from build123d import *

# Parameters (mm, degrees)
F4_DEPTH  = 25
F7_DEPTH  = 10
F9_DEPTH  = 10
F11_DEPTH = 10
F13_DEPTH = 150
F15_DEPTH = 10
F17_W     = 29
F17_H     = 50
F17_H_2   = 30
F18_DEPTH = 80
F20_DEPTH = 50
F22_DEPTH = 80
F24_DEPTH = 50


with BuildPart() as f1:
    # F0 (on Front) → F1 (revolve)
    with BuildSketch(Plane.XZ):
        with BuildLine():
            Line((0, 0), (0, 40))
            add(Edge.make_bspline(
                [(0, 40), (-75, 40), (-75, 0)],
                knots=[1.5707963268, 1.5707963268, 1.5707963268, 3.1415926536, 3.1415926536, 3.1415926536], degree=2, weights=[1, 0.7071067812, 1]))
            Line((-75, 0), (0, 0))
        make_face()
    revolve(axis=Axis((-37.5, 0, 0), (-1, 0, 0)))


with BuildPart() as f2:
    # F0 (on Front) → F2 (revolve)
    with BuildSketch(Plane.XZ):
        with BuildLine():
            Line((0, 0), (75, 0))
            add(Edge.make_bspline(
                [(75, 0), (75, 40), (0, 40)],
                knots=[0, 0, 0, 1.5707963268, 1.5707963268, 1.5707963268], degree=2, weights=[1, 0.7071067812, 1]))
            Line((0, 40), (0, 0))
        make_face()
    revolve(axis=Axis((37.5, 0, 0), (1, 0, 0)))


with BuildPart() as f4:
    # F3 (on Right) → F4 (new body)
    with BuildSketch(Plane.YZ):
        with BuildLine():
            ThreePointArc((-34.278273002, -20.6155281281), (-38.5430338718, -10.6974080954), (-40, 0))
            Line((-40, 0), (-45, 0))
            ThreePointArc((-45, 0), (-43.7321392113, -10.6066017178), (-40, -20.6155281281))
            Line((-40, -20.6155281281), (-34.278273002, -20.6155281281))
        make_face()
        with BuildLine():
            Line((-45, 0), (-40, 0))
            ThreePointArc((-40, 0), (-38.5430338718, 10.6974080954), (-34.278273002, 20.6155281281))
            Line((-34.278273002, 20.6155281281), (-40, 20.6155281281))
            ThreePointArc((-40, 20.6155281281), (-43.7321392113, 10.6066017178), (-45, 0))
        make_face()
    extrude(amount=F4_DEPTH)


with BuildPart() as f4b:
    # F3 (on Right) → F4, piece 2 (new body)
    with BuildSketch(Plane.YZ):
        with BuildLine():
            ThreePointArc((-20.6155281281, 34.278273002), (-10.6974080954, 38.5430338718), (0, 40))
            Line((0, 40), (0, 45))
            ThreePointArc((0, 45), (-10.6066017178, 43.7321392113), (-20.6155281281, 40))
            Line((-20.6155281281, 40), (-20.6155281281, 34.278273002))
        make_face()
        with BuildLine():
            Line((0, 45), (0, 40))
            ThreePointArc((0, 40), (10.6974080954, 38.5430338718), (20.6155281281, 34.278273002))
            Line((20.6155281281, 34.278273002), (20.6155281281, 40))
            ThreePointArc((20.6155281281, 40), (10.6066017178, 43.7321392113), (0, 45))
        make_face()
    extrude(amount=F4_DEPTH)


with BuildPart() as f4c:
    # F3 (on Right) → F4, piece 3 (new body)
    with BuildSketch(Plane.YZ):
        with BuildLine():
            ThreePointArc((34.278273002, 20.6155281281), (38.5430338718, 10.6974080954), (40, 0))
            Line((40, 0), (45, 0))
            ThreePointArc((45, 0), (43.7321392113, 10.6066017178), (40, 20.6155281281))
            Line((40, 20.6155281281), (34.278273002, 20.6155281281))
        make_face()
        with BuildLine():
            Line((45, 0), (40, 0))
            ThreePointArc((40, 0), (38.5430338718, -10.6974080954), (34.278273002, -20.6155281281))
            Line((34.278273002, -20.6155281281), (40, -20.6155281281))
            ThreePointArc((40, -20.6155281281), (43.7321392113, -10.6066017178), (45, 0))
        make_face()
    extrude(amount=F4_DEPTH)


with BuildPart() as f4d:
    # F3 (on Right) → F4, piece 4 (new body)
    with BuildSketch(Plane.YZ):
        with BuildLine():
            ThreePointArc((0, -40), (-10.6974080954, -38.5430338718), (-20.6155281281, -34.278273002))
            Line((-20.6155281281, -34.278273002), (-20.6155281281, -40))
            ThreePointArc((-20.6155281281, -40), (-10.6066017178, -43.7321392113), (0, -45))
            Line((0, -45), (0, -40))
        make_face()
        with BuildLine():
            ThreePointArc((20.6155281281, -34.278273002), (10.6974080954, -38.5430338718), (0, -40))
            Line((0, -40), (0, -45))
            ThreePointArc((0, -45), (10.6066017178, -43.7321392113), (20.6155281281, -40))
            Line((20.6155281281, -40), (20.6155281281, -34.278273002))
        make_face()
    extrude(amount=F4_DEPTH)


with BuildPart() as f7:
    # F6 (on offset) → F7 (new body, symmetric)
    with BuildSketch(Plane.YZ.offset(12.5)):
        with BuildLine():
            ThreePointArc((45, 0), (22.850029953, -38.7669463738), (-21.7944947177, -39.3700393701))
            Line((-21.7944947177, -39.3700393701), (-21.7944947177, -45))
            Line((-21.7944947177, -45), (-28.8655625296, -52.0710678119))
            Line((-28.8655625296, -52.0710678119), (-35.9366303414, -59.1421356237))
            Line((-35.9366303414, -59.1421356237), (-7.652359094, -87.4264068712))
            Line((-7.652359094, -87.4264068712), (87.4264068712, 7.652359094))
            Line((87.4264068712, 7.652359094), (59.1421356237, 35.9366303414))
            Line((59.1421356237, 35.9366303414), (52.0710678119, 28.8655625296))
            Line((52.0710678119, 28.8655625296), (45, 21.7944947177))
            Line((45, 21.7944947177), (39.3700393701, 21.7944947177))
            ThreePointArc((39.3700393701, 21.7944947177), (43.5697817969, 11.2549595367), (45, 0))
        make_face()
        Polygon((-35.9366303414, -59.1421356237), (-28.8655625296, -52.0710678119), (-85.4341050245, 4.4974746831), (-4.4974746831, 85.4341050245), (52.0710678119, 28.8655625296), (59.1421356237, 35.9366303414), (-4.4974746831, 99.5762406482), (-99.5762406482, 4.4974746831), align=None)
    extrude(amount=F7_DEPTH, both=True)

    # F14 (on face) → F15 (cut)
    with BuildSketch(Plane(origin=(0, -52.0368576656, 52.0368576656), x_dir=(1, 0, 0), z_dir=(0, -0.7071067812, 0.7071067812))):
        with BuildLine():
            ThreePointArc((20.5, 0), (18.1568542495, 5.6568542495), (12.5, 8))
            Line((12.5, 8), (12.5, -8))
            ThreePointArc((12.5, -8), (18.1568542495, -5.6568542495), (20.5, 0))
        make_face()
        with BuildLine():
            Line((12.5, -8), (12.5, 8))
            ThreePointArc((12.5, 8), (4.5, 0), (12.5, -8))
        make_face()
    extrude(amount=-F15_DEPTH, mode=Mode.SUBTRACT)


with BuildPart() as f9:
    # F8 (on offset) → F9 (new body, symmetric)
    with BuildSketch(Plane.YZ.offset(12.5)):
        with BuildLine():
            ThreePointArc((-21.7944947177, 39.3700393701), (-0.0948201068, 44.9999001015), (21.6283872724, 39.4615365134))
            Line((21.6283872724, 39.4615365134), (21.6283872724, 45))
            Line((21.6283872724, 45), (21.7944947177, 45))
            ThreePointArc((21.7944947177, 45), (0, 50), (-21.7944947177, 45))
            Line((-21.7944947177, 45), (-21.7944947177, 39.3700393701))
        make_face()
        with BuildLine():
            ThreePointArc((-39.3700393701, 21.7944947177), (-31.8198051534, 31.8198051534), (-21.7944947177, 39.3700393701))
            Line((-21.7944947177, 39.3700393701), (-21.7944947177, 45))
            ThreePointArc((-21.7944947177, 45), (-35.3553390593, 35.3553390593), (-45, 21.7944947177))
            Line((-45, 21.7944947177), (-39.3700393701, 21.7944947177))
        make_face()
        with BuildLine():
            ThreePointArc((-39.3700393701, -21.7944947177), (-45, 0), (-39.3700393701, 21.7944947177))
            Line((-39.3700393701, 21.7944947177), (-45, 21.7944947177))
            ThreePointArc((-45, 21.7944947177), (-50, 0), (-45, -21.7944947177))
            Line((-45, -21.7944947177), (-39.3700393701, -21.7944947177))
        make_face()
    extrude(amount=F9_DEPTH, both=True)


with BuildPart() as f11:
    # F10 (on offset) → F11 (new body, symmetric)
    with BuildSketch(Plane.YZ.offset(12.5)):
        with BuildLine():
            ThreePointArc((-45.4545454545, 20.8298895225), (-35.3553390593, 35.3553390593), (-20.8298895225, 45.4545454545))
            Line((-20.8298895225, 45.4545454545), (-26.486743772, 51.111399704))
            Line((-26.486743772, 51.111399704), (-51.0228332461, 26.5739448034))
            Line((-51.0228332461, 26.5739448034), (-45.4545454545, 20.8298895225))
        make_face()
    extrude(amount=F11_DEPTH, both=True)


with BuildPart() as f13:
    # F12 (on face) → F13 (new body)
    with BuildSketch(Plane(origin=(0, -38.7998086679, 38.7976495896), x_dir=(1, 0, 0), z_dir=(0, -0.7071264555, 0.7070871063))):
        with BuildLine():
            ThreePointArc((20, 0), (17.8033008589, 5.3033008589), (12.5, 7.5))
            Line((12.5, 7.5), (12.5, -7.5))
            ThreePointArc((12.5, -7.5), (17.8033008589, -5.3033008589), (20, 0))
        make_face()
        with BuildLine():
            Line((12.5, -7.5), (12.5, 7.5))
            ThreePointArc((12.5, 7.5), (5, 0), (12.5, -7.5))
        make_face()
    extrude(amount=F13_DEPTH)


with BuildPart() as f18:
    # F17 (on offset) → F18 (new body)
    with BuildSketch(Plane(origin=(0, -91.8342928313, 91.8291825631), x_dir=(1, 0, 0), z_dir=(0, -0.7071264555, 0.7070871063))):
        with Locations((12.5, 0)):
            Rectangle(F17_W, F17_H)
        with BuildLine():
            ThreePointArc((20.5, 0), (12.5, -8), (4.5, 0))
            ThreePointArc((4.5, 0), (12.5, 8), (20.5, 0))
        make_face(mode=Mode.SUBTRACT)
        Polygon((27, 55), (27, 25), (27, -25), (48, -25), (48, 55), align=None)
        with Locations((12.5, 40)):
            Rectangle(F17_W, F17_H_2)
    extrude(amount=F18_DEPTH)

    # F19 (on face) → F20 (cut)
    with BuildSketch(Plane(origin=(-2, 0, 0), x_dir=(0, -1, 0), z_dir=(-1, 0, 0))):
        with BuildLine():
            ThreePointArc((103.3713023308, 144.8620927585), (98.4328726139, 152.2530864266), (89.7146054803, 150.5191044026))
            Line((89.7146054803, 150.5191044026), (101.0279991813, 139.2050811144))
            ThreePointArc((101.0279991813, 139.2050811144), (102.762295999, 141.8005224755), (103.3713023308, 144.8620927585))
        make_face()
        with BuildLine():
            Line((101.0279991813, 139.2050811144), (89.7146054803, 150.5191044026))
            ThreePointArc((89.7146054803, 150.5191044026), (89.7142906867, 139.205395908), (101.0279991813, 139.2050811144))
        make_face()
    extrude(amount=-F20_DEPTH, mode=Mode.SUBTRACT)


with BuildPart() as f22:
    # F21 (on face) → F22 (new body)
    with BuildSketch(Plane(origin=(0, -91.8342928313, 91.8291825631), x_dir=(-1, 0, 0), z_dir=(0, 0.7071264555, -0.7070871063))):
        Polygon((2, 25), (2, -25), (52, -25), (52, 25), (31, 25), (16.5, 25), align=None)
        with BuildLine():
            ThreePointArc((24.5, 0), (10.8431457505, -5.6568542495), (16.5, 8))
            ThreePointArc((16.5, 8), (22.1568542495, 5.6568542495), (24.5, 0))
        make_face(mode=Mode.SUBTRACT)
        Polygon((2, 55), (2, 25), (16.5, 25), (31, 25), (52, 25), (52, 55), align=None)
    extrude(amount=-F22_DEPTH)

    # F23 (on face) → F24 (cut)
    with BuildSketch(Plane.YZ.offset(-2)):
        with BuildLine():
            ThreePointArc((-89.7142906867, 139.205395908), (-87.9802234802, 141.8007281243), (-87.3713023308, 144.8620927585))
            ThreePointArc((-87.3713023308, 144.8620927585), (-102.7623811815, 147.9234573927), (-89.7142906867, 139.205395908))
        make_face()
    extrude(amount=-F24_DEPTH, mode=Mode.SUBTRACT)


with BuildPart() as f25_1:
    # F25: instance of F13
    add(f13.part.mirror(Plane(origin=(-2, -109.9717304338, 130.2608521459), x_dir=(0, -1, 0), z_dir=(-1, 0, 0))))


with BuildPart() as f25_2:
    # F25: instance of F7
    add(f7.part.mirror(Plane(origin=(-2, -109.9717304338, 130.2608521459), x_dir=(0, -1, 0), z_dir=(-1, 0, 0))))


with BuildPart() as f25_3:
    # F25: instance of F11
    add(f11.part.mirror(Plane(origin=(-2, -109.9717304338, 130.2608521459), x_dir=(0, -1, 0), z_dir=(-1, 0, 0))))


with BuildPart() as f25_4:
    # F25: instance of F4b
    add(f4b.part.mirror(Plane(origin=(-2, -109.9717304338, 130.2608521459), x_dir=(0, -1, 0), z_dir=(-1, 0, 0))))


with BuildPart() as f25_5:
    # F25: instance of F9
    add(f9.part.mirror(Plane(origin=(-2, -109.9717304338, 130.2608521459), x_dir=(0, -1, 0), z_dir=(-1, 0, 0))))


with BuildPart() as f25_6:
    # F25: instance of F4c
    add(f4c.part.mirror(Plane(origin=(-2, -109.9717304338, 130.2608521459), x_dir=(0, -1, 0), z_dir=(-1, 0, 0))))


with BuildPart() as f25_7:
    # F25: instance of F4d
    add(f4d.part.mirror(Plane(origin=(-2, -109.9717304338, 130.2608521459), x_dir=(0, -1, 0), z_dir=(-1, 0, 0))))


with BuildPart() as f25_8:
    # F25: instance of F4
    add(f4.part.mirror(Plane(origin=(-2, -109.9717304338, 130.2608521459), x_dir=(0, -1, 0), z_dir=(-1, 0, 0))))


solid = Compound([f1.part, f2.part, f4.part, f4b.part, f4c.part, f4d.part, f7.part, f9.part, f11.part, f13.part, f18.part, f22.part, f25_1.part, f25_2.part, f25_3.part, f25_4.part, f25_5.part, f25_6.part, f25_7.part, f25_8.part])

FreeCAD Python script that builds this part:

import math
import FreeCAD as App
import Part
import Sketcher
Q = App.Units.Quantity


def add_polygon(sketch, points):
    """Adds a closed chain of lines whose ends are joined by coincident constraints."""
    first, n = sketch.GeometryCount, len(points)
    for a, b in zip(points, points[1:] + points[:1]):
        sketch.addGeometry(Part.LineSegment(App.Vector(*a, 0), App.Vector(*b, 0)), False)
    for i in range(n):
        sketch.addConstraint(Sketcher.Constraint("Coincident", first + i, 2, first + (i + 1) % n, 1))

doc = App.newDocument("Part")
body = doc.addObject("PartDesign::Body", "Body")

# Sketch on XZ plane
sketch1 = body.newObject("Sketcher::SketchObject", "Sketch")
sketch1.AttachmentSupport = (doc.getObject("XZ_Plane"), [""])
sketch1.MapMode = "FlatFace"
sketch1.addGeometry(Part.LineSegment(App.Vector(0, 0, 0), App.Vector(0, 40, 0)), False)
sketch1.addGeometry(Part.BSplineCurve([App.Vector(0, 40, 0), App.Vector(-75, 40, 0), App.Vector(-75, 0, 0)], [3, 3], [1.570796327, 3.141592654], False, 2, [1, 0.707106781, 1], False), False)
sketch1.addGeometry(Part.LineSegment(App.Vector(-75, 0, 0), App.Vector(0, 0, 0)), False)
sketch1.addConstraint(Sketcher.Constraint("Block", 1))
sketch1.addConstraint(Sketcher.Constraint("Coincident", 0, 2, 1, 1))
sketch1.addConstraint(Sketcher.Constraint("Coincident", 1, 2, 2, 1))
sketch1.addConstraint(Sketcher.Constraint("Coincident", 2, 2, 0, 1))
sketch1.addConstraint(Sketcher.Constraint("Vertical", 0))
sketch1.addConstraint(Sketcher.Constraint("Horizontal", 2))
revolution = body.newObject("PartDesign::Revolution", "Revolution")
revolution.Profile = sketch1
revolution.ReferenceAxis = (sketch1, ["H_Axis"])
revolution.Angle = 360
body2 = doc.addObject("PartDesign::Body", "Body001")

# Sketch on XZ plane
sketch2 = body2.newObject("Sketcher::SketchObject", "Sketch001")
sketch2.AttachmentSupport = (doc.getObject("XZ_Plane001"), [""])
sketch2.MapMode = "FlatFace"
sketch2.addGeometry(Part.LineSegment(App.Vector(0, 0, 0), App.Vector(75, 0, 0)), False)
sketch2.addGeometry(Part.BSplineCurve([App.Vector(75, 0, 0), App.Vector(75, 40, 0), App.Vector(0, 40, 0)], [3, 3], [0, 1.570796327], False, 2, [1, 0.707106781, 1], False), False)
sketch2.addGeometry(Part.LineSegment(App.Vector(0, 40, 0), App.Vector(0, 0, 0)), False)
sketch2.addConstraint(Sketcher.Constraint("Block", 1))
sketch2.addConstraint(Sketcher.Constraint("Coincident", 0, 2, 1, 1))
sketch2.addConstraint(Sketcher.Constraint("Coincident", 1, 2, 2, 1))
sketch2.addConstraint(Sketcher.Constraint("Coincident", 2, 2, 0, 1))
sketch2.addConstraint(Sketcher.Constraint("Horizontal", 0))
sketch2.addConstraint(Sketcher.Constraint("Vertical", 2))
revolution2 = body2.newObject("PartDesign::Revolution", "Revolution001")
revolution2.Profile = sketch2
revolution2.ReferenceAxis = (sketch2, ["H_Axis"])
revolution2.Angle = 360
body3 = doc.addObject("PartDesign::Body", "Body002")

# Sketch on YZ plane
sketch3 = body3.newObject("Sketcher::SketchObject", "Sketch002")
sketch3.AttachmentSupport = (doc.getObject("YZ_Plane002"), [""])
sketch3.MapMode = "FlatFace"
sketch3.addGeometry(Part.ArcOfCircle(Part.Circle(App.Vector(0, 0, 0), App.Vector(0, 0, 1), 40), math.radians(180), math.radians(211)), False)
sketch3.addGeometry(Part.ArcOfCircle(Part.Circle(App.Vector(0, 0, 0), App.Vector(0, 0, 1), 40), math.radians(149), math.radians(180)), False)
sketch3.addGeometry(Part.LineSegment(App.Vector(-34, 21, 0), App.Vector(-40, 21, 0)), False)
sketch3.addGeometry(Part.ArcOfCircle(Part.Circle(App.Vector(0, 0, 0), App.Vector(0, 0, 1), 45), math.radians(153), math.radians(180)), False)
sketch3.addGeometry(Part.ArcOfCircle(Part.Circle(App.Vector(0, 0, 0), App.Vector(0, 0, 1), 45), math.radians(180), math.radians(207)), False)
sketch3.addGeometry(Part.LineSegment(App.Vector(-40, -21, 0), App.Vector(-34, -21, 0)), False)
sketch3.addConstraint(Sketcher.Constraint("Tangent", 0, 1, 1, 2))
sketch3.addConstraint(Sketcher.Constraint("Coincident", 1, 1, 2, 1))
sketch3.addConstraint(Sketcher.Constraint("Coincident", 2, 2, 3, 1))
sketch3.addConstraint(Sketcher.Constraint("Tangent", 3, 2, 4, 1))
sketch3.addConstraint(Sketcher.Constraint("Coincident", 4, 2, 5, 1))
sketch3.addConstraint(Sketcher.Constraint("Coincident", 5, 2, 0, 2))
sketch3.addConstraint(Sketcher.Constraint("Horizontal", 2))
sketch3.addConstraint(Sketcher.Constraint("Horizontal", 5))
sketch3.addConstraint(Sketcher.Constraint("Coincident", 0, 3, -1, 1))
sketch3.addConstraint(Sketcher.Constraint("Coincident", 3, 3, -1, 1))
sketch3.addConstraint(Sketcher.Constraint("Equal", 0, 1))
sketch3.addConstraint(Sketcher.Constraint("Equal", 3, 4))
sketch3.addConstraint(Sketcher.Constraint("PointOnObject", 0, 1, -1))
sketch3.addConstraint(Sketcher.Constraint("PointOnObject", 3, 2, -1))
sketch3.addConstraint(Sketcher.Constraint("Vertical", 0, 1, 2, 2))
sketch3.addConstraint(Sketcher.Constraint("Vertical", 2, 2, 4, 2))
sketch3.addConstraint(Sketcher.Constraint("Radius", 0, Q("40 mm")))
sketch3.addConstraint(Sketcher.Constraint("Radius", 3, Q("45 mm")))
pad1 = body3.newObject("PartDesign::Pad", "Pad")
pad1.Profile = sketch3
pad1.Length = 25
body4 = doc.addObject("PartDesign::Body", "Body003")

# Sketch on YZ plane
sketch4 = body4.newObject("Sketcher::SketchObject", "Sketch003")
sketch4.AttachmentSupport = (doc.getObject("YZ_Plane003"), [""])
sketch4.MapMode = "FlatFace"
sketch4.addGeometry(Part.ArcOfCircle(Part.Circle(App.Vector(0, 0, 0), App.Vector(0, 0, 1), 40), math.radians(90), math.radians(121)), False)
sketch4.addGeometry(Part.ArcOfCircle(Part.Circle(App.Vector(0, 0, 0), App.Vector(0, 0, 1), 40), math.radians(59), math.radians(90)), False)
sketch4.addGeometry(Part.LineSegment(App.Vector(21, 34, 0), App.Vector(21, 40, 0)), False)
sketch4.addGeometry(Part.ArcOfCircle(Part.Circle(App.Vector(0, 0, 0), App.Vector(0, 0, 1), 45), math.radians(63), math.radians(90)), False)
sketch4.addGeometry(Part.ArcOfCircle(Part.Circle(App.Vector(0, 0, 0), App.Vector(0, 0, 1), 45), math.radians(90), math.radians(117)), False)
sketch4.addGeometry(Part.LineSegment(App.Vector(-21, 40, 0), App.Vector(-21, 34, 0)), False)
sketch4.addConstraint(Sketcher.Constraint("Tangent", 0, 1, 1, 2))
sketch4.addConstraint(Sketcher.Constraint("Coincident", 1, 1, 2, 1))
sketch4.addConstraint(Sketcher.Constraint("Coincident", 2, 2, 3, 1))
sketch4.addConstraint(Sketcher.Constraint("Tangent", 3, 2, 4, 1))
sketch4.addConstraint(Sketcher.Constraint("Coincident", 4, 2, 5, 1))
sketch4.addConstraint(Sketcher.Constraint("Coincident", 5, 2, 0, 2))
sketch4.addConstraint(Sketcher.Constraint("Vertical", 2))
sketch4.addConstraint(Sketcher.Constraint("Vertical", 5))
sketch4.addConstraint(Sketcher.Constraint("Coincident", 0, 3, -1, 1))
sketch4.addConstraint(Sketcher.Constraint("Coincident", 3, 3, -1, 1))
sketch4.addConstraint(Sketcher.Constraint("Equal", 0, 1))
sketch4.addConstraint(Sketcher.Constraint("Equal", 3, 4))
sketch4.addConstraint(Sketcher.Constraint("PointOnObject", 0, 1, -2))
sketch4.addConstraint(Sketcher.Constraint("PointOnObject", 3, 2, -2))
sketch4.addConstraint(Sketcher.Constraint("Horizontal", 0, 1, 2, 2))
sketch4.addConstraint(Sketcher.Constraint("Horizontal", 2, 2, 4, 2))
sketch4.addConstraint(Sketcher.Constraint("Radius", 0, Q("40 mm")))
sketch4.addConstraint(Sketcher.Constraint("Radius", 3, Q("45 mm")))
pad2 = body4.newObject("PartDesign::Pad", "Pad001")
pad2.Profile = sketch4
pad2.Length = 25
body5 = doc.addObject("PartDesign::Body", "Body004")

# Sketch on YZ plane
sketch5 = body5.newObject("Sketcher::SketchObject", "Sketch004")
sketch5.AttachmentSupport = (doc.getObject("YZ_Plane004"), [""])
sketch5.MapMode = "FlatFace"
sketch5.addGeometry(Part.ArcOfCircle(Part.Circle(App.Vector(0, 0, 0), App.Vector(0, 0, 1), 40), math.radians(0), math.radians(31)), False)
sketch5.addGeometry(Part.ArcOfCircle(Part.Circle(App.Vector(0, 0, 0), App.Vector(0, 0, 1), 40), math.radians(-31), math.radians(0)), False)
sketch5.addGeometry(Part.LineSegment(App.Vector(34, -21, 0), App.Vector(40, -21, 0)), False)
sketch5.addGeometry(Part.ArcOfCircle(Part.Circle(App.Vector(0, 0, 0), App.Vector(0, 0, 1), 45), math.radians(-27), math.radians(0)), False)
sketch5.addGeometry(Part.ArcOfCircle(Part.Circle(App.Vector(0, 0, 0), App.Vector(0, 0, 1), 45), math.radians(0), math.radians(27)), False)
sketch5.addGeometry(Part.LineSegment(App.Vector(40, 21, 0), App.Vector(34, 21, 0)), False)
sketch5.addConstraint(Sketcher.Constraint("Tangent", 0, 1, 1, 2))
sketch5.addConstraint(Sketcher.Constraint("Coincident", 1, 1, 2, 1))
sketch5.addConstraint(Sketcher.Constraint("Coincident", 2, 2, 3, 1))
sketch5.addConstraint(Sketcher.Constraint("Tangent", 3, 2, 4, 1))
sketch5.addConstraint(Sketcher.Constraint("Coincident", 4, 2, 5, 1))
sketch5.addConstraint(Sketcher.Constraint("Coincident", 5, 2, 0, 2))
sketch5.addConstraint(Sketcher.Constraint("Horizontal", 2))
sketch5.addConstraint(Sketcher.Constraint("Horizontal", 5))
sketch5.addConstraint(Sketcher.Constraint("Coincident", 0, 3, -1, 1))
sketch5.addConstraint(Sketcher.Constraint("Coincident", 3, 3, -1, 1))
sketch5.addConstraint(Sketcher.Constraint("Equal", 0, 1))
sketch5.addConstraint(Sketcher.Constraint("Equal", 3, 4))
sketch5.addConstraint(Sketcher.Constraint("PointOnObject", 0, 1, -1))
sketch5.addConstraint(Sketcher.Constraint("PointOnObject", 3, 2, -1))
sketch5.addConstraint(Sketcher.Constraint("Vertical", 0, 1, 2, 2))
sketch5.addConstraint(Sketcher.Constraint("Vertical", 2, 2, 4, 2))
sketch5.addConstraint(Sketcher.Constraint("Radius", 0, Q("40 mm")))
sketch5.addConstraint(Sketcher.Constraint("Radius", 3, Q("45 mm")))
pad3 = body5.newObject("PartDesign::Pad", "Pad002")
pad3.Profile = sketch5
pad3.Length = 25
body6 = doc.addObject("PartDesign::Body", "Body005")

# Sketch on YZ plane
sketch6 = body6.newObject("Sketcher::SketchObject", "Sketch005")
sketch6.AttachmentSupport = (doc.getObject("YZ_Plane005"), [""])
sketch6.MapMode = "FlatFace"
sketch6.addGeometry(Part.ArcOfCircle(Part.Circle(App.Vector(0, 0, 0), App.Vector(0, 0, 1), 40), math.radians(-121), math.radians(-90)), False)
sketch6.addGeometry(Part.LineSegment(App.Vector(-21, -34, 0), App.Vector(-21, -40, 0)), False)
sketch6.addGeometry(Part.ArcOfCircle(Part.Circle(App.Vector(0, 0, 0), App.Vector(0, 0, 1), 45), math.radians(-117), math.radians(-90)), False)
sketch6.addGeometry(Part.ArcOfCircle(Part.Circle(App.Vector(0, 0, 0), App.Vector(0, 0, 1), 45), math.radians(-90), math.radians(-63)), False)
sketch6.addGeometry(Part.LineSegment(App.Vector(21, -40, 0), App.Vector(21, -34, 0)), False)
sketch6.addGeometry(Part.ArcOfCircle(Part.Circle(App.Vector(0, 0, 0), App.Vector(0, 0, 1), 40), math.radians(-90), math.radians(-59)), False)
sketch6.addConstraint(Sketcher.Constraint("Coincident", 0, 1, 1, 1))
sketch6.addConstraint(Sketcher.Constraint("Coincident", 1, 2, 2, 1))
sketch6.addConstraint(Sketcher.Constraint("Tangent", 2, 2, 3, 1))
sketch6.addConstraint(Sketcher.Constraint("Coincident", 3, 2, 4, 1))
sketch6.addConstraint(Sketcher.Constraint("Coincident", 4, 2, 5, 2))
sketch6.addConstraint(Sketcher.Constraint("Tangent", 5, 1, 0, 2))
sketch6.addConstraint(Sketcher.Constraint("Vertical", 1))
sketch6.addConstraint(Sketcher.Constraint("Vertical", 4))
sketch6.addConstraint(Sketcher.Constraint("Coincident", 0, 3, -1, 1))
sketch6.addConstraint(Sketcher.Constraint("Coincident", 2, 3, -1, 1))
sketch6.addConstraint(Sketcher.Constraint("Equal", 2, 3))
sketch6.addConstraint(Sketcher.Constraint("Equal", 0, 5))
sketch6.addConstraint(Sketcher.Constraint("PointOnObject", 2, 2, -2))
sketch6.addConstraint(Sketcher.Constraint("PointOnObject", 5, 1, -2))
sketch6.addConstraint(Sketcher.Constraint("Horizontal", 1, 2, 3, 2))
sketch6.addConstraint(Sketcher.Constraint("Horizontal", 3, 2, 5, 1))
sketch6.addConstraint(Sketcher.Constraint("Radius", 0, Q("40 mm")))
sketch6.addConstraint(Sketcher.Constraint("Radius", 2, Q("45 mm")))
pad4 = body6.newObject("PartDesign::Pad", "Pad003")
pad4.Profile = sketch6
pad4.Length = 25
body7 = doc.addObject("PartDesign::Body", "Body006")

# Sketch on YZ plane
sketch7 = body7.newObject("Sketcher::SketchObject", "Sketch006")
sketch7.AttachmentSupport = (doc.getObject("YZ_Plane006"), [""])
sketch7.MapMode = "FlatFace"
sketch7.AttachmentOffset = App.Placement(App.Vector(0, 0, 12.5), App.Rotation())
add_polygon(sketch7, [(-36, -59), (-8, -87), (87, 8), (59, 36), (-4, 100), (-100, 4)])  # lines 0-5
sketch7.addGeometry(Part.ArcOfCircle(Part.Circle(App.Vector(0, 0, 0), App.Vector(0, 0, 1), 45), math.radians(-119), math.radians(0)), False)  # 6
sketch7.addGeometry(Part.LineSegment(App.Vector(-22, -39, 0), App.Vector(-22, -45, 0)), False)  # 7
sketch7.addGeometry(Part.LineSegment(App.Vector(-22, -45, 0), App.Vector(-29, -52, 0)), False)  # 8
sketch7.addGeometry(Part.LineSegment(App.Vector(-29, -52, 0), App.Vector(-85, 4, 0)), False)  # 9
sketch7.addGeometry(Part.LineSegment(App.Vector(-85, 4, 0), App.Vector(-4, 85, 0)), False)  # 10
sketch7.addGeometry(Part.LineSegment(App.Vector(-4, 85, 0), App.Vector(52, 29, 0)), False)  # 11
sketch7.addGeometry(Part.LineSegment(App.Vector(52, 29, 0), App.Vector(45, 22, 0)), False)  # 12
sketch7.addGeometry(Part.LineSegment(App.Vector(45, 22, 0), App.Vector(39, 22, 0)), False)  # 13
sketch7.addGeometry(Part.ArcOfCircle(Part.Circle(App.Vector(0, 0, 0), App.Vector(0, 0, 1), 45), math.radians(0), math.radians(29)), False)  # 14
sketch7.addConstraint(Sketcher.Constraint("Coincident", 6, 1, 7, 1))
sketch7.addConstraint(Sketcher.Constraint("Coincident", 7, 2, 8, 1))
sketch7.addConstraint(Sketcher.Constraint("Coincident", 8, 2, 9, 1))
sketch7.addConstraint(Sketcher.Constraint("Coincident", 9, 2, 10, 1))
sketch7.addConstraint(Sketcher.Constraint("Coincident", 10, 2, 11, 1))
sketch7.addConstraint(Sketcher.Constraint("Coincident", 11, 2, 12, 1))
sketch7.addConstraint(Sketcher.Constraint("Coincident", 12, 2, 13, 1))
sketch7.addConstraint(Sketcher.Constraint("Coincident", 13, 2, 14, 2))
sketch7.addConstraint(Sketcher.Constraint("Tangent", 14, 1, 6, 2))
sketch7.addConstraint(Sketcher.Constraint("Vertical", 7))
sketch7.addConstraint(Sketcher.Constraint("Horizontal", 13))
sketch7.addConstraint(Sketcher.Constraint("Coincident", 6, 3, -1, 1))
sketch7.addConstraint(Sketcher.Constraint("Equal", 6, 14))
sketch7.addConstraint(Sketcher.Constraint("PointOnObject", 14, 1, -1))
sketch7.addConstraint(Sketcher.Constraint("Perpendicular", 0, 1))
sketch7.addConstraint(Sketcher.Constraint("Perpendicular", 1, 2))
sketch7.addConstraint(Sketcher.Constraint("Parallel", 2, 3))
sketch7.addConstraint(Sketcher.Constraint("Perpendicular", 3, 4))
sketch7.addConstraint(Sketcher.Constraint("Perpendicular", 4, 5))
sketch7.addConstraint(Sketcher.Constraint("Perpendicular", 5, 8))
sketch7.addConstraint(Sketcher.Constraint("Perpendicular", 8, 9))
sketch7.addConstraint(Sketcher.Constraint("Perpendicular", 9, 10))
sketch7.addConstraint(Sketcher.Constraint("Perpendicular", 10, 11))
sketch7.addConstraint(Sketcher.Constraint("Perpendicular", 11, 12))
sketch7.addConstraint(Sketcher.Constraint("Horizontal", 4, 2, 9, 2))
sketch7.addConstraint(Sketcher.Constraint("Vertical", 3, 2, 10, 2))
sketch7.addConstraint(Sketcher.Constraint("Vertical", 12, 2, 14, 1))
sketch7.addConstraint(Sketcher.Constraint("Equal", 13, 7))
sketch7.addConstraint(Sketcher.Constraint("Equal", 0, 2))
sketch7.addConstraint(Sketcher.Constraint("Equal", 9, 11))
sketch7.addConstraint(Sketcher.Constraint("Equal", 8, 12))
sketch7.addConstraint(Sketcher.Constraint("Radius", 6, Q("45 mm")))
sketch7.addConstraint(Sketcher.Constraint("Angle", 0, Q("-45 deg")))
sketch7.addConstraint(Sketcher.Constraint("Distance", 0, Q("40 mm")))
sketch7.addConstraint(Sketcher.Constraint("Distance", 3, Q("90 mm")))
sketch7.addConstraint(Sketcher.Constraint("Distance", 8, Q("10 mm")))
sketch7.addConstraint(Sketcher.Constraint("Distance", 9, Q("80 mm")))
sketch7.addConstraint(Sketcher.Constraint("DistanceX", 13, 2, 13, 1, Q("5.629961 mm")))
sketch7.addConstraint(Sketcher.Constraint("Distance", 1, Q("134.46168 mm")))
pad5 = body7.newObject("PartDesign::Pad", "Pad004")
pad5.Profile = sketch7
pad5.Length = 20
pad5.Midplane = True

# Sketch on an angled plane
sketch8 = body7.newObject("Sketcher::SketchObject", "Sketch007")
sketch8.Placement = App.Placement(App.Vector(0, -52.036858, 52.036858), App.Rotation(App.Vector(1, 0, 0), App.Vector(0, 0.707106781, 0.707106781), App.Vector(0, -0.707106781, 0.707106781), "ZXY"))
sketch8.addGeometry(Part.ArcOfCircle(Part.Circle(App.Vector(12, 0, 0), App.Vector(0, 0, 1), 8), math.radians(0), math.radians(90)), False)
sketch8.addGeometry(Part.ArcOfCircle(Part.Circle(App.Vector(12, 0, 0), App.Vector(0, 0, 1), 8), math.radians(90), math.radians(270)), False)
sketch8.addGeometry(Part.ArcOfCircle(Part.Circle(App.Vector(12, 0, 0), App.Vector(0, 0, 1), 8), math.radians(-90), math.radians(0)), False)
sketch8.addConstraint(Sketcher.Constraint("Tangent", 0, 2, 1, 1))
sketch8.addConstraint(Sketcher.Constraint("Tangent", 1, 2, 2, 1))
sketch8.addConstraint(Sketcher.Constraint("Tangent", 2, 2, 0, 1))
sketch8.addConstraint(Sketcher.Constraint("Symmetric", 0, 2, 1, 2, -1))
sketch8.addConstraint(Sketcher.Constraint("PointOnObject", 2, 2, -1))
sketch8.addConstraint(Sketcher.Constraint("Vertical", 2, 3, 0, 2))
sketch8.addConstraint(Sketcher.Constraint("Radius", 0, Q("8 mm")))
sketch8.addConstraint(Sketcher.Constraint("DistanceX", -1, 1, 0, 3, Q("12.5 mm")))
pocket1 = body7.newObject("PartDesign::Pocket", "Pocket")
pocket1.Profile = sketch8
pocket1.Length = 10
body8 = doc.addObject("PartDesign::Body", "Body007")

# Sketch on YZ plane
sketch9 = body8.newObject("Sketcher::SketchObject", "Sketch008")
sketch9.AttachmentSupport = (doc.getObject("YZ_Plane007"), [""])
sketch9.MapMode = "FlatFace"
sketch9.AttachmentOffset = App.Placement(App.Vector(0, 0, 12.5), App.Rotation())
sketch9.addGeometry(Part.ArcOfCircle(Part.Circle(App.Vector(0, 0, 0), App.Vector(0, 0, 1), 45), math.radians(61), math.radians(119)), False)
sketch9.addGeometry(Part.LineSegment(App.Vector(21.63, 39.46, 0), App.Vector(21.63, 45, 0)), False)
sketch9.addGeometry(Part.LineSegment(App.Vector(21.63, 45, 0), App.Vector(21.79, 45, 0)), False)
sketch9.addGeometry(Part.ArcOfCircle(Part.Circle(App.Vector(0, 0, 0), App.Vector(0, 0, 1), 50), math.radians(64), math.radians(116)), False)
sketch9.addGeometry(Part.ArcOfCircle(Part.Circle(App.Vector(0, 0, 0), App.Vector(0, 0, 1), 50), math.radians(116), math.radians(154)), False)
sketch9.addGeometry(Part.ArcOfCircle(Part.Circle(App.Vector(0, 0, 0), App.Vector(0, 0, 1), 50), math.radians(154), math.radians(206)), False)
sketch9.addGeometry(Part.LineSegment(App.Vector(-45, -21.79, 0), App.Vector(-39.37, -21.79, 0)), False)
sketch9.addGeometry(Part.ArcOfCircle(Part.Circle(App.Vector(0, 0, 0), App.Vector(0, 0, 1), 45), math.radians(151), math.radians(209)), False)
sketch9.addGeometry(Part.ArcOfCircle(Part.Circle(App.Vector(0, 0, 0), App.Vector(0, 0, 1), 45), math.radians(119), math.radians(151)), False)
sketch9.addConstraint(Sketcher.Constraint("Coincident", 0, 1, 1, 1))
sketch9.addConstraint(Sketcher.Constraint("Coincident", 1, 2, 2, 1))
sketch9.addConstraint(Sketcher.Constraint("Coincident", 2, 2, 3, 1))
sketch9.addConstraint(Sketcher.Constraint("Tangent", 3, 2, 4, 1))
sketch9.addConstraint(Sketcher.Constraint("Tangent", 4, 2, 5, 1))
sketch9.addConstraint(Sketcher.Constraint("Coincident", 5, 2, 6, 1))
sketch9.addConstraint(Sketcher.Constraint("Coincident", 6, 2, 7, 2))
sketch9.addConstraint(Sketcher.Constraint("Tangent", 7, 1, 8, 2))
sketch9.addConstraint(Sketcher.Constraint("Tangent", 8, 1, 0, 2))
sketch9.addConstraint(Sketcher.Constraint("Vertical", 1))
sketch9.addConstraint(Sketcher.Constraint("Horizontal", 2))
sketch9.addConstraint(Sketcher.Constraint("Horizontal", 6))
sketch9.addConstraint(Sketcher.Constraint("Coincident", 0, 3, -1, 1))
sketch9.addConstraint(Sketcher.Constraint("Coincident", 3, 3, -1, 1))
sketch9.addConstraint(Sketcher.Constraint("Coincident", 5, 3, -1, 1))
sketch9.addConstraint(Sketcher.Constraint("Coincident", 7, 3, -1, 1))
sketch9.addConstraint(Sketcher.Constraint("Horizontal", 2, 2, 3, 2))
sketch9.addConstraint(Sketcher.Constraint("Horizontal", 4, 2, 7, 1))
sketch9.addConstraint(Sketcher.Constraint("Vertical", 4, 2, 5, 2))
sketch9.addConstraint(Sketcher.Constraint("Vertical", 3, 2, 8, 1))
sketch9.addConstraint(Sketcher.Constraint("Radius", 0, Q("45 mm")))
sketch9.addConstraint(Sketcher.Constraint("Radius", 3, Q("50 mm")))
sketch9.addConstraint(Sketcher.Constraint("DistanceY", -1, 1, 1, 2, Q("45 mm")))
sketch9.addConstraint(Sketcher.Constraint("DistanceX", 4, 2, -1, 1, Q("45 mm")))
sketch9.addConstraint(Sketcher.Constraint("DistanceX", 2, 1, 2, 2, Q("0.166107 mm")))
pad6 = body8.newObject("PartDesign::Pad", "Pad005")
pad6.Profile = sketch9
pad6.Length = 20
pad6.Midplane = True
body9 = doc.addObject("PartDesign::Body", "Body008")

# Sketch on YZ plane
sketch10 = body9.newObject("Sketcher::SketchObject", "Sketch009")
sketch10.AttachmentSupport = (doc.getObject("YZ_Plane008"), [""])
sketch10.MapMode = "FlatFace"
sketch10.AttachmentOffset = App.Placement(App.Vector(0, 0, 12.5), App.Rotation())
sketch10.addGeometry(Part.ArcOfCircle(Part.Circle(App.Vector(0, 0, 0), App.Vector(0, 0, 1), 50), math.radians(115), math.radians(155)), False)
sketch10.addGeometry(Part.LineSegment(App.Vector(-21, 45, 0), App.Vector(-26, 51, 0)), False)
sketch10.addGeometry(Part.LineSegment(App.Vector(-26, 51, 0), App.Vector(-51, 27, 0)), False)
sketch10.addGeometry(Part.LineSegment(App.Vector(-51, 27, 0), App.Vector(-45, 21, 0)), False)
sketch10.addConstraint(Sketcher.Constraint("Coincident", 0, 1, 1, 1))
sketch10.addConstraint(Sketcher.Constraint("Coincident", 1, 2, 2, 1))
sketch10.addConstraint(Sketcher.Constraint("Coincident", 2, 2, 3, 1))
sketch10.addConstraint(Sketcher.Constraint("Coincident", 3, 2, 0, 2))
sketch10.addConstraint(Sketcher.Constraint("Coincident", 0, 3, -1, 1))
sketch10.addConstraint(Sketcher.Constraint("Equal", 1, 3))
sketch10.addConstraint(Sketcher.Constraint("Radius", 0, Q("50 mm")))
sketch10.addConstraint(Sketcher.Constraint("Angle", 1, Q("135 deg")))
sketch10.addConstraint(Sketcher.Constraint("Distance", 1, Q("8 mm")))
sketch10.addConstraint(Sketcher.Constraint("DistanceY", -1, 1, 1, 2, Q("51.1114 mm")))
sketch10.addConstraint(Sketcher.Constraint("DistanceY", 2, 2, 0, 1, Q("18.880601 mm")))
sketch10.addConstraint(Sketcher.Constraint("DistanceX", 3, 2, 1, 2, Q("18.967802 mm")))
pad7 = body9.newObject("PartDesign::Pad", "Pad006")
pad7.Profile = sketch10
pad7.Length = 20
pad7.Midplane = True
body10 = doc.addObject("PartDesign::Body", "Body009")

# Sketch on an angled plane
sketch11 = body10.newObject("Sketcher::SketchObject", "Sketch010")
sketch11.Placement = App.Placement(App.Vector(0, -38.799809, 38.79765), App.Rotation(App.Vector(1, 0, 0), App.Vector(0, 0.707087106, 0.707126456), App.Vector(0, -0.707126456, 0.707087106), "ZXY"))
sketch11.addGeometry(Part.Circle(App.Vector(12, 0, 0), App.Vector(0, 0, 1), 8), False)
sketch11.addConstraint(Sketcher.Constraint("PointOnObject", 0, 3, -1))
sketch11.addConstraint(Sketcher.Constraint("Diameter", 0, Q("15 mm")))
sketch11.addConstraint(Sketcher.Constraint("DistanceX", -1, 1, 0, 3, Q("12.5 mm")))
pad8 = body10.newObject("PartDesign::Pad", "Pad007")
pad8.Profile = sketch11
pad8.Length = 150
body11 = doc.addObject("PartDesign::Body", "Body010")

# Sketch on an angled plane
sketch12 = body11.newObject("Sketcher::SketchObject", "Sketch011")
sketch12.Placement = App.Placement(App.Vector(0, -91.834293, 91.829183), App.Rotation(App.Vector(1, 0, 0), App.Vector(0, 0.707087106, 0.707126456), App.Vector(0, -0.707126456, 0.707087106), "ZXY"))
add_polygon(sketch12, [(-2, -25), (48, -25), (48, 55), (-2, 55)])  # lines 0-3
sketch12.addGeometry(Part.Circle(App.Vector(12, 0, 0), App.Vector(0, 0, 1), 8), False)  # 4
sketch12.addConstraint(Sketcher.Constraint("Horizontal", 0))
sketch12.addConstraint(Sketcher.Constraint("Vertical", 1))
sketch12.addConstraint(Sketcher.Constraint("Horizontal", 2))
sketch12.addConstraint(Sketcher.Constraint("Vertical", 3))
sketch12.addConstraint(Sketcher.Constraint("PointOnObject", 4, 3, -1))
sketch12.addConstraint(Sketcher.Constraint("Diameter", 4, Q("16 mm")))
sketch12.addConstraint(Sketcher.Constraint("DistanceX", 0, 1, 0, 2, Q("50 mm")))
sketch12.addConstraint(Sketcher.Constraint("DistanceY", 1, 1, 1, 2, Q("80 mm")))
sketch12.addConstraint(Sketcher.Constraint("DistanceX", -1, 1, 0, 2, Q("48 mm")))
sketch12.addConstraint(Sketcher.Constraint("DistanceY", 0, 2, -1, 1, Q("25 mm")))
sketch12.addConstraint(Sketcher.Constraint("DistanceX", -1, 1, 4, 3, Q("12.5 mm")))
pad9 = body11.newObject("PartDesign::Pad", "Pad008")
pad9.Profile = sketch12
pad9.Length = 80

# Sketch on YZ plane
sketch13 = body11.newObject("Sketcher::SketchObject", "Sketch012")
sketch13.AttachmentSupport = (doc.getObject("YZ_Plane010"), [""])
sketch13.MapMode = "FlatFace"
sketch13.AttachmentOffset = App.Placement(App.Vector(0, 0, -2), App.Rotation())
sketch13.addGeometry(Part.ArcOfCircle(Part.Circle(App.Vector(-95, 145, 0), App.Vector(0, 0, 1), 8), math.radians(45), math.radians(180)), False)
sketch13.addGeometry(Part.ArcOfCircle(Part.Circle(App.Vector(-95, 145, 0), App.Vector(0, 0, 1), 8), math.radians(-135), math.radians(45)), False)
sketch13.addGeometry(Part.ArcOfCircle(Part.Circle(App.Vector(-95, 145, 0), App.Vector(0, 0, 1), 8), math.radians(180), math.radians(225)), False)
sketch13.addConstraint(Sketcher.Constraint("Tangent", 0, 1, 1, 2))
sketch13.addConstraint(Sketcher.Constraint("Tangent", 1, 1, 2, 2))
sketch13.addConstraint(Sketcher.Constraint("Tangent", 2, 1, 0, 2))
sketch13.addConstraint(Sketcher.Constraint("Horizontal", 1, 3, 2, 1))
sketch13.addConstraint(Sketcher.Constraint("Radius", 0, Q("8 mm")))
sketch13.addConstraint(Sketcher.Constraint("DistanceX", 1, 1, -1, 1, Q("101.027999 mm")))
sketch13.addConstraint(Sketcher.Constraint("DistanceY", -1, 1, 1, 1, Q("139.205081 mm")))
sketch13.addConstraint(Sketcher.Constraint("DistanceY", 0, 3, 0, 1, Q("5.657012 mm")))
sketch13.addConstraint(Sketcher.Constraint("DistanceY", 1, 1, 2, 3, Q("5.657012 mm")))
pocket2 = body11.newObject("PartDesign::Pocket", "Pocket001")
pocket2.Profile = sketch13
pocket2.Length = 50
pocket2.Reversed = True
body12 = doc.addObject("PartDesign::Body", "Body011")

# Sketch on an angled plane
sketch14 = body12.newObject("Sketcher::SketchObject", "Sketch013")
sketch14.Placement = App.Placement(App.Vector(0, -91.834293, 91.829183), App.Rotation(App.Vector(-1, 0, 0), App.Vector(0, 0.707087106, 0.707126456), App.Vector(0, 0.707126456, -0.707087106), "ZXY"))
add_polygon(sketch14, [(2, -25), (52, -25), (52, 55), (2, 55)])  # lines 0-3
sketch14.addGeometry(Part.ArcOfCircle(Part.Circle(App.Vector(16, 0, 0), App.Vector(0, 0, 1), 8), math.radians(0), math.radians(90)), False)  # 4
sketch14.addGeometry(Part.ArcOfCircle(Part.Circle(App.Vector(16, 0, 0), App.Vector(0, 0, 1), 8), math.radians(90), math.radians(360)), False)  # 5
sketch14.addConstraint(Sketcher.Constraint("Tangent", 4, 1, 5, 2))
sketch14.addConstraint(Sketcher.Constraint("Coincident", 5, 1, 4, 2))
sketch14.addConstraint(Sketcher.Constraint("Horizontal", 0))
sketch14.addConstraint(Sketcher.Constraint("Vertical", 1))
sketch14.addConstraint(Sketcher.Constraint("Horizontal", 2))
sketch14.addConstraint(Sketcher.Constraint("Vertical", 3))
sketch14.addConstraint(Sketcher.Constraint("PointOnObject", 4, 3, -1))
sketch14.addConstraint(Sketcher.Constraint("PointOnObject", 4, 1, -1))
sketch14.addConstraint(Sketcher.Constraint("Vertical", 4, 3, 5, 1))
sketch14.addConstraint(Sketcher.Constraint("Radius", 4, Q("8 mm")))
sketch14.addConstraint(Sketcher.Constraint("DistanceX", 0, 1, 0, 2, Q("50 mm")))
sketch14.addConstraint(Sketcher.Constraint("DistanceY", 1, 1, 1, 2, Q("80 mm")))
sketch14.addConstraint(Sketcher.Constraint("DistanceX", -1, 1, 0, 2, Q("52 mm")))
sketch14.addConstraint(Sketcher.Constraint("DistanceY", 0, 2, -1, 1, Q("25 mm")))
sketch14.addConstraint(Sketcher.Constraint("DistanceX", -1, 1, 4, 3, Q("16.5 mm")))
pad10 = body12.newObject("PartDesign::Pad", "Pad009")
pad10.Profile = sketch14
pad10.Length = 80
pad10.Reversed = True

# Sketch on YZ plane
sketch15 = body12.newObject("Sketcher::SketchObject", "Sketch014")
sketch15.AttachmentSupport = (doc.getObject("YZ_Plane011"), [""])
sketch15.MapMode = "FlatFace"
sketch15.AttachmentOffset = App.Placement(App.Vector(0, 0, -2), App.Rotation())
sketch15.addGeometry(Part.ArcOfCircle(Part.Circle(App.Vector(-95, 145, 0), App.Vector(0, 0, 1), 8), math.radians(-45), math.radians(0)), False)
sketch15.addGeometry(Part.ArcOfCircle(Part.Circle(App.Vector(-95, 145, 0), App.Vector(0, 0, 1), 8), math.radians(0), math.radians(315)), False)
sketch15.addConstraint(Sketcher.Constraint("Tangent", 0, 1, 1, 2))
sketch15.addConstraint(Sketcher.Constraint("Coincident", 1, 1, 0, 2))
sketch15.addConstraint(Sketcher.Constraint("Horizontal", 0, 3, 1, 1))
sketch15.addConstraint(Sketcher.Constraint("Radius", 0, Q("8 mm")))
sketch15.addConstraint(Sketcher.Constraint("DistanceX", 0, 1, -1, 1, Q("89.714291 mm")))
sketch15.addConstraint(Sketcher.Constraint("DistanceX", 0, 3, 0, 1, Q("5.657012 mm")))
sketch15.addConstraint(Sketcher.Constraint("DistanceY", -1, 1, 0, 3, Q("144.862093 mm")))
pocket3 = body12.newObject("PartDesign::Pocket", "Pocket002")
pocket3.Profile = sketch15
pocket3.Length = 50
body13 = doc.addObject("PartDesign::Body", "Body012")
doc.recompute()

mirroring = doc.addObject("Part::Mirroring", "Mirroring")
mirroring.Source = body10
mirroring.Base = App.Vector(-2, -109.97173, 130.260852)
mirroring.Normal = App.Vector(-1, 0, 0)
body13.BaseFeature = mirroring
doc.recompute()
body14 = doc.addObject("PartDesign::Body", "Body013")
doc.recompute()

mirroring2 = doc.addObject("Part::Mirroring", "Mirroring001")
mirroring2.Source = body7
mirroring2.Base = App.Vector(-2, -109.97173, 130.260852)
mirroring2.Normal = App.Vector(-1, 0, 0)
body14.BaseFeature = mirroring2
doc.recompute()
body15 = doc.addObject("PartDesign::Body", "Body014")
doc.recompute()

mirroring3 = doc.addObject("Part::Mirroring", "Mirroring002")
mirroring3.Source = body9
mirroring3.Base = App.Vector(-2, -109.97173, 130.260852)
mirroring3.Normal = App.Vector(-1, 0, 0)
body15.BaseFeature = mirroring3
doc.recompute()
body16 = doc.addObject("PartDesign::Body", "Body015")
doc.recompute()

mirroring4 = doc.addObject("Part::Mirroring", "Mirroring003")
mirroring4.Source = body4
mirroring4.Base = App.Vector(-2, -109.97173, 130.260852)
mirroring4.Normal = App.Vector(-1, 0, 0)
body16.BaseFeature = mirroring4
doc.recompute()
body17 = doc.addObject("PartDesign::Body", "Body016")
doc.recompute()

mirroring5 = doc.addObject("Part::Mirroring", "Mirroring004")
mirroring5.Source = body8
mirroring5.Base = App.Vector(-2, -109.97173, 130.260852)
mirroring5.Normal = App.Vector(-1, 0, 0)
body17.BaseFeature = mirroring5
doc.recompute()
body18 = doc.addObject("PartDesign::Body", "Body017")
doc.recompute()

mirroring6 = doc.addObject("Part::Mirroring", "Mirroring005")
mirroring6.Source = body5
mirroring6.Base = App.Vector(-2, -109.97173, 130.260852)
mirroring6.Normal = App.Vector(-1, 0, 0)
body18.BaseFeature = mirroring6
doc.recompute()
body19 = doc.addObject("PartDesign::Body", "Body018")
doc.recompute()

mirroring7 = doc.addObject("Part::Mirroring", "Mirroring006")
mirroring7.Source = body6
mirroring7.Base = App.Vector(-2, -109.97173, 130.260852)
mirroring7.Normal = App.Vector(-1, 0, 0)
body19.BaseFeature = mirroring7
doc.recompute()
body20 = doc.addObject("PartDesign::Body", "Body019")
doc.recompute()

mirroring8 = doc.addObject("Part::Mirroring", "Mirroring007")
mirroring8.Source = body3
mirroring8.Base = App.Vector(-2, -109.97173, 130.260852)
mirroring8.Normal = App.Vector(-1, 0, 0)
body20.BaseFeature = mirroring8
doc.recompute()

doc.recompute()
